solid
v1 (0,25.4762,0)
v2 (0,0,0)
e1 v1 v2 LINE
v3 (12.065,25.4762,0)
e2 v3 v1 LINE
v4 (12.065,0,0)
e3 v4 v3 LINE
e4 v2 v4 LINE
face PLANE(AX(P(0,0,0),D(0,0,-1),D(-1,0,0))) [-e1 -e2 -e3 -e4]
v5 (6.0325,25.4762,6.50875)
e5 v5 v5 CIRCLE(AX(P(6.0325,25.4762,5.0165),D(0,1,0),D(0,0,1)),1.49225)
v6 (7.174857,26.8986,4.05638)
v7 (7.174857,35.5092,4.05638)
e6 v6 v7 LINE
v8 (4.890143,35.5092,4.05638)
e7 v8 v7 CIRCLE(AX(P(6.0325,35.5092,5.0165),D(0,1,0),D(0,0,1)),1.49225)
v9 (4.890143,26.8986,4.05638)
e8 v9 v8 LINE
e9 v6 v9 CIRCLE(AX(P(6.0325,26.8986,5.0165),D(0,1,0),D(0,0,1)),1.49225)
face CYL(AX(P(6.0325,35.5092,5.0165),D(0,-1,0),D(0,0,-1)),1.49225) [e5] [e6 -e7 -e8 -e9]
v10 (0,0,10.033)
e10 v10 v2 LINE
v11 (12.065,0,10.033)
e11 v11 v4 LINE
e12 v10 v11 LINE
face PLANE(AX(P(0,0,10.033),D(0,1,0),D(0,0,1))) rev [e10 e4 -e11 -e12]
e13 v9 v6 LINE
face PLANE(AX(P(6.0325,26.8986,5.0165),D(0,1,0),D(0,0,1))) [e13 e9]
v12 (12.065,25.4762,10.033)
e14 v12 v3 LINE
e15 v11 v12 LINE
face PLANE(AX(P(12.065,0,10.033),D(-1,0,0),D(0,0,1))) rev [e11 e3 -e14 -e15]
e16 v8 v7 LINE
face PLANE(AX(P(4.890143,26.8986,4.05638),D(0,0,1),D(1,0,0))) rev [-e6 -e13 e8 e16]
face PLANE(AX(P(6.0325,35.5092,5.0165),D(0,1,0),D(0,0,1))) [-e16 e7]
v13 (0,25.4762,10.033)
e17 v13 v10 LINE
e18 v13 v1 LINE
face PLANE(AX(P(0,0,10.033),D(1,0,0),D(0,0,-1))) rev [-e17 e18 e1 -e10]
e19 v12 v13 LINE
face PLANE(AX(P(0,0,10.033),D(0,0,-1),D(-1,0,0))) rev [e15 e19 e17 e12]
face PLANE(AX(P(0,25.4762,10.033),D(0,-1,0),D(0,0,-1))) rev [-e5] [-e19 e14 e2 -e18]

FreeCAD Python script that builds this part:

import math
import FreeCAD as App
import Part
import Sketcher
Q = App.Units.Quantity


def add_polygon(sketch, points):
    """Adds a closed chain of lines whose ends are joined by coincident constraints."""
    first, n = sketch.GeometryCount, len(points)
    for a, b in zip(points, points[1:] + points[:1]):
        sketch.addGeometry(Part.LineSegment(App.Vector(*a, 0), App.Vector(*b, 0)), False)
    for i in range(n):
        sketch.addConstraint(Sketcher.Constraint("Coincident", first + i, 2, first + (i + 1) % n, 1))

doc = App.newDocument("Part")
params = doc.addObject("Spreadsheet::Sheet", "Params")
for row, (alias, value) in enumerate([
    ("sketch1_width", "0.475 in"),
    ("sketch1_height", "1.003 in"),
    ("pad1_length", "0.395 in"),
    ("pad2_length", "0.395 in"),
    ("pocket1_length", "0.339 in"),
], start=1):
    params.set(f"A{row}", alias)
    params.set(f"B{row}", "=" + value)
    params.setAlias(f"B{row}", alias)

body = doc.addObject("PartDesign::Body", "Body")

sketch1 = body.newObject("Sketcher::SketchObject", "Sketch")
sketch1.AttachmentSupport = (doc.getObject("XY_Plane"), [""])
sketch1.MapMode = "FlatFace"
add_polygon(sketch1, [(0, 25), (0, 0), (12, 0), (12, 25)])
sketch1.addConstraint(Sketcher.Constraint("Vertical", 0))
sketch1.addConstraint(Sketcher.Constraint("Horizontal", 1))
sketch1.addConstraint(Sketcher.Constraint("Vertical", 2))
sketch1.addConstraint(Sketcher.Constraint("Horizontal", 3))
sketch1.addConstraint(Sketcher.Constraint("Coincident", 0, 2, -1, 1))
sketch1.addConstraint(Sketcher.Constraint("DistanceX", 1, 1, 1, 2, Q("0.475 in")))
sketch1.addConstraint(Sketcher.Constraint("DistanceY", 0, 2, 0, 1, Q("1.003 in")))
sketch1.setExpression("Constraints[9]", "Params.sketch1_width")
sketch1.setExpression("Constraints[10]", "Params.sketch1_height")
pad1 = body.newObject("PartDesign::Pad", "Pad")
pad1.Profile = sketch1
pad1.setExpression("Length", "Params.pad1_length")

sketch2 = body.newObject("Sketcher::SketchObject", "Sketch001")
sketch2.AttachmentSupport = (doc.getObject("XZ_Plane"), [""])
sketch2.MapMode = "FlatFace"
sketch2.AttachmentOffset = App.Placement(App.Vector(0, 0, -1.003 * 25.4), App.Rotation())
sketch2.addGeometry(Part.Circle(App.Vector(6, 5, 0), App.Vector(0, 0, 1), 1.5), False)
sketch2.addConstraint(Sketcher.Constraint("Diameter", 0, Q("0.1175 in")))
sketch2.addConstraint(Sketcher.Constraint("DistanceX", -1, 1, 0, 3, Q("0.2375 in")))
sketch2.addConstraint(Sketcher.Constraint("DistanceY", -1, 1, 0, 3, Q("0.1975 in")))
pad2 = body.newObject("PartDesign::Pad", "Pad001")
pad2.Profile = sketch2
pad2.setExpression("Length", "Params.pad2_length")
pad2.Reversed = True

sketch3 = body.newObject("Sketcher::SketchObject", "Sketch002")
sketch3.AttachmentSupport = (doc.getObject("XZ_Plane"), [""])
sketch3.MapMode = "FlatFace"
sketch3.AttachmentOffset = App.Placement(App.Vector(0, 0, -1.398 * 25.4), App.Rotation())
sketch3.addGeometry(Part.LineSegment(App.Vector(4.9, 4.1, 0), App.Vector(7.2, 4.1, 0)), False)
sketch3.addGeometry(Part.ArcOfCircle(Part.Circle(App.Vector(6, 5, 0), App.Vector(0, 0, 1), 1.5), math.radians(-140), math.radians(-40)), False)
sketch3.addConstraint(Sketcher.Constraint("Coincident", 0, 1, 1, 1))
sketch3.addConstraint(Sketcher.Constraint("Coincident", 1, 2, 0, 2))
sketch3.addConstraint(Sketcher.Constraint("Horizontal", 0))
sketch3.addConstraint(Sketcher.Constraint("Radius", 1, Q("1.49225 mm")))
sketch3.addConstraint(Sketcher.Constraint("DistanceX", -1, 1, 1, 3, Q("0.2375 in")))
sketch3.addConstraint(Sketcher.Constraint("DistanceY", -1, 1, 1, 3, Q("0.1975 in")))
sketch3.addConstraint(Sketcher.Constraint("DistanceY", -1, 1, 0, 1, Q("0.1597 in")))
pocket1 = body.newObject("PartDesign::Pocket", "Pocket")
pocket1.Profile = sketch3
pocket1.setExpression("Length", "Params.pocket1_length")
pocket1.Reversed = True

doc.recompute()
